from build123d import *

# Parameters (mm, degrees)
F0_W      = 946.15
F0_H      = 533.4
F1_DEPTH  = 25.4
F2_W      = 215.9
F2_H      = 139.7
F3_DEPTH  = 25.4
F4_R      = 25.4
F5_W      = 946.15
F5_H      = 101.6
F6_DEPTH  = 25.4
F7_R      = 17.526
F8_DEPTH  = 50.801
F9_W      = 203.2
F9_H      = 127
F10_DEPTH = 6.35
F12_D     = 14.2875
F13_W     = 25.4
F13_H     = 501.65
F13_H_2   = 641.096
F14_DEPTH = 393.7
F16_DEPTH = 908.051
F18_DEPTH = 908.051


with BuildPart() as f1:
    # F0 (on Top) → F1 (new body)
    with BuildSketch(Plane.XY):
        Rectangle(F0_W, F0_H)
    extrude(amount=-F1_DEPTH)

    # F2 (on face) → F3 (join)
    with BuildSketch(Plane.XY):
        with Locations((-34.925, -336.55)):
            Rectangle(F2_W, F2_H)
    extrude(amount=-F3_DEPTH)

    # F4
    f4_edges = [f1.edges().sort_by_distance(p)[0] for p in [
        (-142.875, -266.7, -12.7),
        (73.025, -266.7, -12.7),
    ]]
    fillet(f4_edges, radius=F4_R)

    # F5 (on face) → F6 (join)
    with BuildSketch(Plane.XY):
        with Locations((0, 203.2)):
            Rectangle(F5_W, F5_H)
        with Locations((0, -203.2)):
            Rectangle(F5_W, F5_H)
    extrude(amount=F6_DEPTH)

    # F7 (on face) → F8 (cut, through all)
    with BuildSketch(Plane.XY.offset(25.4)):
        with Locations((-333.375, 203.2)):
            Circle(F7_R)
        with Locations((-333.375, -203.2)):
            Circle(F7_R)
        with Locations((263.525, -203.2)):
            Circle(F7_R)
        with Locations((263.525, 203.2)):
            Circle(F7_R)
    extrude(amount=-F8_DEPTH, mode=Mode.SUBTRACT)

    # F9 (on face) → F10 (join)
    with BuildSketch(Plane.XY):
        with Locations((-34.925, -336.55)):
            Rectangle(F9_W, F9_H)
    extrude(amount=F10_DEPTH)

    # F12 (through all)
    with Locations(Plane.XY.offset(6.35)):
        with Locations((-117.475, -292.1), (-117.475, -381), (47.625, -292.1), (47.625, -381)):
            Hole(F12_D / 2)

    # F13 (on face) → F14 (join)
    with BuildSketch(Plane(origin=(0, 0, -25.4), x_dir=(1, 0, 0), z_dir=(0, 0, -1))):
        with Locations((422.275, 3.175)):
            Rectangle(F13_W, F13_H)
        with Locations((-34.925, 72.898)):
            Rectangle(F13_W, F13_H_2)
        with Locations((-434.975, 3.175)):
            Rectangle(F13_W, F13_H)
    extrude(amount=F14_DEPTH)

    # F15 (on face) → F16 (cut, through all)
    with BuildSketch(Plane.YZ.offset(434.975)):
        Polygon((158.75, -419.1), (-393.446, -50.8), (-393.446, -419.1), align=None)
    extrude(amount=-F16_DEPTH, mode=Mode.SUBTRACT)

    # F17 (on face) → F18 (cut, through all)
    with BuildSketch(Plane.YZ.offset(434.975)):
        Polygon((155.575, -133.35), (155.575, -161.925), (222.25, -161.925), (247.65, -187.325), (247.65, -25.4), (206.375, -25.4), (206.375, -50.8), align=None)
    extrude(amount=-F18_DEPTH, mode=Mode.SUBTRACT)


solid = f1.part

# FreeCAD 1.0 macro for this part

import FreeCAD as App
import Part
import Sketcher

V = App.Vector
Q = App.Units.Quantity


def edges_at(feature, points):
    """Names of the edges that pass closest to the given points."""
    edges = feature.Shape.Edges
    near = lambda p: min(range(len(edges)), key=lambda i: edges[i].distToShape(Part.Vertex(*p))[0])
    return sorted({f"Edge{near(p) + 1}" for p in points})


def add_polygon(sketch, points):
    """Adds a closed chain of lines whose ends are joined by coincident constraints."""
    first, n = sketch.GeometryCount, len(points)
    for a, b in zip(points, points[1:] + points[:1]):
        sketch.addGeometry(Part.LineSegment(App.Vector(*a, 0), App.Vector(*b, 0)), False)
    for i in range(n):
        sketch.addConstraint(Sketcher.Constraint("Coincident", first + i, 2, first + (i + 1) % n, 1))

doc = App.newDocument("Part")
body = doc.addObject("PartDesign::Body", "Body")

# Sketch on XY plane
sketch1 = body.newObject("Sketcher::SketchObject", "Sketch")
sketch1.AttachmentSupport = (doc.getObject("XY_Plane"), [""])
sketch1.MapMode = "FlatFace"
add_polygon(sketch1, [(-473, 267), (-473, -267), (473, -267), (473, 267)])  # lines 0-3
sketch1.addConstraint([
    Sketcher.Constraint("Vertical", 0),
    Sketcher.Constraint("Horizontal", 1),
    Sketcher.Constraint("Vertical", 2),
    Sketcher.Constraint("Horizontal", 3),
    Sketcher.Constraint("Symmetric", 0, 2, 2, 2, -1, 1),
    Sketcher.Constraint("DistanceY", 0, 2, 0, 1, Q("21 in")),
    Sketcher.Constraint("DistanceX", 1, 1, 1, 2, Q("37.25 in")),
])
pad1 = body.newObject("PartDesign::Pad", "Pad")
pad1.Profile = sketch1
pad1.Length = Q("1 in")
pad1.Reversed = True

# Sketch on XY plane
sketch2 = body.newObject("Sketcher::SketchObject", "Sketch001")
sketch2.AttachmentSupport = (doc.getObject("XY_Plane"), [""])
sketch2.MapMode = "FlatFace"
add_polygon(sketch2, [(-143, -267), (-143, -406), (73, -406), (73, -267)])  # lines 0-3
sketch2.addConstraint([
    Sketcher.Constraint("Vertical", 0),
    Sketcher.Constraint("Horizontal", 1),
    Sketcher.Constraint("Vertical", 2),
    Sketcher.Constraint("Horizontal", 3),
    Sketcher.Constraint("DistanceX", 1, 1, 1, 2, Q("8.5 in")),
    Sketcher.Constraint("DistanceY", 0, 2, 0, 1, Q("5.5 in")),
    Sketcher.Constraint("DistanceY", 0, 2, -1, 1, Q("16 in")),
    Sketcher.Constraint("DistanceX", 0, 2, -1, 1, Q("5.625 in")),
])
pad2 = body.newObject("PartDesign::Pad", "Pad001")
pad2.Profile = sketch2
pad2.Length = Q("1 in")
pad2.Reversed = True
doc.recompute()

fillet = body.newObject("PartDesign::Fillet", "Fillet")
fillet.Base = (pad2, edges_at(pad2, [(-142.875, -266.7, -12.7), (73.025, -266.7, -12.7)]))
fillet.Radius = Q("1 in")

# Sketch on XY plane
sketch3 = body.newObject("Sketcher::SketchObject", "Sketch002")
sketch3.AttachmentSupport = (doc.getObject("XY_Plane"), [""])
sketch3.MapMode = "FlatFace"
add_polygon(sketch3, [(-473, 254), (-473, 152), (473, 152), (473, 254)])  # lines 0-3
add_polygon(sketch3, [(-473, -152), (-473, -254), (473, -254), (473, -152)])  # lines 4-7
sketch3.addConstraint([
    Sketcher.Constraint("Vertical", 0),
    Sketcher.Constraint("Horizontal", 1),
    Sketcher.Constraint("Vertical", 2),
    Sketcher.Constraint("Horizontal", 3),
    Sketcher.Constraint("Vertical", 4),
    Sketcher.Constraint("Horizontal", 5),
    Sketcher.Constraint("Vertical", 6),
    Sketcher.Constraint("Horizontal", 7),
    Sketcher.Constraint("Symmetric", 2, 2, 4, 2, -1, 1),
    Sketcher.Constraint("Symmetric", 0, 2, 6, 2, -1, 1),
    Sketcher.Constraint("Vertical", 3, 2, 4, 2),
    Sketcher.Constraint("DistanceY", 0, 2, 0, 1, Q("4 in")),
    Sketcher.Constraint("DistanceY", -1, 1, 0, 2, Q("6 in")),
    Sketcher.Constraint("DistanceX", 1, 1, 1, 2, Q("37.25 in")),
])
pad3 = body.newObject("PartDesign::Pad", "Pad002")
pad3.Profile = sketch3
pad3.Length = Q("1 in")

# Sketch on XY plane
sketch4 = body.newObject("Sketcher::SketchObject", "Sketch003")
sketch4.AttachmentSupport = (doc.getObject("XY_Plane"), [""])
sketch4.MapMode = "FlatFace"
sketch4.AttachmentOffset = App.Placement(V(0, 0, 1 * 25.4), App.Rotation())
sketch4.addGeometry([
    Part.Circle(V(-333, 203, 0), V(0, 0, 1), 18),
    Part.Circle(V(-333, -203, 0), V(0, 0, 1), 18),
    Part.Circle(V(264, -203, 0), V(0, 0, 1), 18),
    Part.Circle(V(264, 203, 0), V(0, 0, 1), 18),
], False)
sketch4.addConstraint([
    Sketcher.Constraint("Equal", 0, 1),
    Sketcher.Constraint("Equal", 1, 2),
    Sketcher.Constraint("Equal", 2, 3),
    Sketcher.Constraint("Symmetric", 0, 3, 1, 3, -1),
    Sketcher.Constraint("Symmetric", 2, 3, 3, 3, -1),
    Sketcher.Constraint("Horizontal", 1, 3, 2, 3),
    Sketcher.Constraint("Diameter", 0, Q("1.38 in")),
    Sketcher.Constraint("DistanceY", -1, 1, 0, 3, Q("8 in")),
    Sketcher.Constraint("DistanceX", 1, 3, 2, 3, Q("23.5 in")),
    Sketcher.Constraint("DistanceX", 0, 3, -1, 1, Q("13.125 in")),
])
pocket1 = body.newObject("PartDesign::Pocket", "Pocket")
pocket1.Profile = sketch4
pocket1.Type = "ThroughAll"

# Sketch on XY plane
sketch5 = body.newObject("Sketcher::SketchObject", "Sketch004")
sketch5.AttachmentSupport = (doc.getObject("XY_Plane"), [""])
sketch5.MapMode = "FlatFace"
add_polygon(sketch5, [(-137, -273), (-137, -400), (67, -400), (67, -273)])  # lines 0-3
sketch5.addConstraint([
    Sketcher.Constraint("Vertical", 0),
    Sketcher.Constraint("Horizontal", 1),
    Sketcher.Constraint("Vertical", 2),
    Sketcher.Constraint("Horizontal", 3),
    Sketcher.Constraint("DistanceX", 1, 1, 1, 2, Q("8 in")),
    Sketcher.Constraint("DistanceY", 0, 2, 0, 1, Q("5 in")),
    Sketcher.Constraint("DistanceY", 0, 2, -1, 1, Q("15.75 in")),
    Sketcher.Constraint("DistanceX", 0, 2, -1, 1, Q("5.375 in")),
])
pad4 = body.newObject("PartDesign::Pad", "Pad003")
pad4.Profile = sketch5
pad4.Length = Q("0.25 in")

# Sketch on XY plane
sketch6 = body.newObject("Sketcher::SketchObject", "Sketch005")
sketch6.AttachmentSupport = (doc.getObject("XY_Plane"), [""])
sketch6.MapMode = "FlatFace"
sketch6.AttachmentOffset = App.Placement(V(0, 0, 0.25 * 25.4), App.Rotation())
sketch6.addGeometry([
    Part.Circle(V(-117, -292, 0), V(0, 0, 1), 7),
    Part.Circle(V(-117, -381, 0), V(0, 0, 1), 7),
    Part.Circle(V(48, -292, 0), V(0, 0, 1), 7),
    Part.Circle(V(48, -381, 0), V(0, 0, 1), 7),
], False)
sketch6.addConstraint([
    Sketcher.Constraint("Equal", 0, 1),
    Sketcher.Constraint("Equal", 1, 2),
    Sketcher.Constraint("Equal", 2, 3),
    Sketcher.Constraint("Horizontal", 0, 3, 2, 3),
    Sketcher.Constraint("Horizontal", 1, 3, 3, 3),
    Sketcher.Constraint("Vertical", 0, 3, 1, 3),
    Sketcher.Constraint("Vertical", 2, 3, 3, 3),
    Sketcher.Constraint("Diameter", 0, Q("0.5625 in")),
    Sketcher.Constraint("DistanceY", 1, 3, -1, 1, Q("15 in")),
    Sketcher.Constraint("DistanceY", 0, 3, -1, 1, Q("11.5 in")),
    Sketcher.Constraint("DistanceX", 0, 3, 2, 3, Q("6.5 in")),
    Sketcher.Constraint("DistanceX", 0, 3, -1, 1, Q("4.625 in")),
])
doc.recompute()
hole = body.newObject("PartDesign::Hole", "Hole")
hole.Profile = sketch6
hole.ThreadType = "None"
hole.Diameter = Q("0.5625 in")
hole.DepthType = "ThroughAll"

# Sketch on XY plane
sketch7 = body.newObject("Sketcher::SketchObject", "Sketch006")
sketch7.AttachmentSupport = (doc.getObject("XY_Plane"), [""])
sketch7.MapMode = "FlatFace"
sketch7.AttachmentOffset = App.Placement(V(0, 0, -1 * 25.4), App.Rotation())
add_polygon(sketch7, [(410, -254), (410, 248), (435, 248), (435, -254)])  # lines 0-3
add_polygon(sketch7, [(-48, -393), (-48, 248), (-22, 248), (-22, -393)])  # lines 4-7
add_polygon(sketch7, [(-448, -254), (-448, 248), (-422, 248), (-422, -254)])  # lines 8-11
sketch7.addConstraint([
    Sketcher.Constraint("Vertical", 0),
    Sketcher.Constraint("Horizontal", 1),
    Sketcher.Constraint("Vertical", 2),
    Sketcher.Constraint("Horizontal", 3),
    Sketcher.Constraint("Vertical", 4),
    Sketcher.Constraint("Horizontal", 5),
    Sketcher.Constraint("Vertical", 6),
    Sketcher.Constraint("Horizontal", 7),
    Sketcher.Constraint("Vertical", 8),
    Sketcher.Constraint("Horizontal", 9),
    Sketcher.Constraint("Vertical", 10),
    Sketcher.Constraint("Horizontal", 11),
    Sketcher.Constraint("Horizontal", 1, 2, 4, 2),
    Sketcher.Constraint("Horizontal", 5, 2, 8, 2),
    Sketcher.Constraint("Horizontal", 3, 2, 10, 2),
    Sketcher.Constraint("Equal", 3, 5),
    Sketcher.Constraint("Equal", 7, 9),
    Sketcher.Constraint("DistanceX", 1, 1, 1, 2, Q("1 in")),
    Sketcher.Constraint("DistanceY", 2, 2, -1, 1, Q("10 in")),
    Sketcher.Constraint("DistanceX", 4, 2, 0, 2, Q("18 in")),
    Sketcher.Constraint("DistanceY", 0, 1, 0, 2, Q("19.75 in")),
    Sketcher.Constraint("DistanceY", 4, 1, 4, 2, Q("25.24 in")),
    Sketcher.Constraint("DistanceX", 8, 2, 4, 2, Q("15.75 in")),
    Sketcher.Constraint("DistanceX", -1, 1, 0, 2, Q("16.125 in")),
])
pad5 = body.newObject("PartDesign::Pad", "Pad004")
pad5.Profile = sketch7
pad5.Length = Q("15.5 in")
pad5.Reversed = True

# Sketch on YZ plane
sketch8 = body.newObject("Sketcher::SketchObject", "Sketch007")
sketch8.AttachmentSupport = (doc.getObject("YZ_Plane"), [""])
sketch8.MapMode = "FlatFace"
sketch8.AttachmentOffset = App.Placement(V(0, 0, 17.125 * 25.4), App.Rotation())
add_polygon(sketch8, [(159, -419), (-393, -51), (-393, -419)])  # lines 0-2
sketch8.addConstraint([
    Sketcher.Constraint("Vertical", 1),
    Sketcher.Constraint("Horizontal", 2),
    Sketcher.Constraint("DistanceY", 1, 2, 1, 1, Q("14.5 in")),
    Sketcher.Constraint("DistanceY", 0, 2, -1, 1, Q("2 in")),
    Sketcher.Constraint("DistanceX", 2, 1, 2, 2, Q("21.74 in")),
    Sketcher.Constraint("DistanceX", 0, 2, -1, 1, Q("15.49 in")),
])
pocket2 = body.newObject("PartDesign::Pocket", "Pocket001")
pocket2.Profile = sketch8
pocket2.Type = "ThroughAll"

# Sketch on YZ plane
sketch9 = body.newObject("Sketcher::SketchObject", "Sketch008")
sketch9.AttachmentSupport = (doc.getObject("YZ_Plane"), [""])
sketch9.MapMode = "FlatFace"
sketch9.AttachmentOffset = App.Placement(V(0, 0, 17.125 * 25.4), App.Rotation())
add_polygon(sketch9, [(156, -133), (156, -162), (222, -162), (248, -187), (248, -25), (206, -25), (206, -51)])  # lines 0-6
sketch9.addConstraint([
    Sketcher.Constraint("Vertical", 0),
    Sketcher.Constraint("Horizontal", 1),
    Sketcher.Constraint("Vertical", 3),
    Sketcher.Constraint("Horizontal", 4),
    Sketcher.Constraint("Vertical", 5),
    Sketcher.Constraint("DistanceY", 5, 2, 5, 1, Q("1 in")),
    Sketcher.Constraint("DistanceY", 3, 2, -1, 1, Q("1 in")),
    Sketcher.Constraint("Angle", 2, Q("-45 deg")),
    Sketcher.Constraint("DistanceX", 1, 2, 2, 2, Q("1 in")),
    Sketcher.Constraint("DistanceX", 0, 2, 4, 2, Q("2 in")),
    Sketcher.Constraint("DistanceX", 1, 1, 1, 2, Q("2.625 in")),
    Sketcher.Constraint("DistanceY", 0, 2, 0, 1, Q("1.125 in")),
    Sketcher.Constraint("DistanceY", 3, 1, 3, 2, Q("6.375 in")),
    Sketcher.Constraint("DistanceX", -1, 1, 1, 2, Q("8.75 in")),
])
pocket3 = body.newObject("PartDesign::Pocket", "Pocket002")
pocket3.Profile = sketch9
pocket3.Type = "ThroughAll"

doc.recompute()
